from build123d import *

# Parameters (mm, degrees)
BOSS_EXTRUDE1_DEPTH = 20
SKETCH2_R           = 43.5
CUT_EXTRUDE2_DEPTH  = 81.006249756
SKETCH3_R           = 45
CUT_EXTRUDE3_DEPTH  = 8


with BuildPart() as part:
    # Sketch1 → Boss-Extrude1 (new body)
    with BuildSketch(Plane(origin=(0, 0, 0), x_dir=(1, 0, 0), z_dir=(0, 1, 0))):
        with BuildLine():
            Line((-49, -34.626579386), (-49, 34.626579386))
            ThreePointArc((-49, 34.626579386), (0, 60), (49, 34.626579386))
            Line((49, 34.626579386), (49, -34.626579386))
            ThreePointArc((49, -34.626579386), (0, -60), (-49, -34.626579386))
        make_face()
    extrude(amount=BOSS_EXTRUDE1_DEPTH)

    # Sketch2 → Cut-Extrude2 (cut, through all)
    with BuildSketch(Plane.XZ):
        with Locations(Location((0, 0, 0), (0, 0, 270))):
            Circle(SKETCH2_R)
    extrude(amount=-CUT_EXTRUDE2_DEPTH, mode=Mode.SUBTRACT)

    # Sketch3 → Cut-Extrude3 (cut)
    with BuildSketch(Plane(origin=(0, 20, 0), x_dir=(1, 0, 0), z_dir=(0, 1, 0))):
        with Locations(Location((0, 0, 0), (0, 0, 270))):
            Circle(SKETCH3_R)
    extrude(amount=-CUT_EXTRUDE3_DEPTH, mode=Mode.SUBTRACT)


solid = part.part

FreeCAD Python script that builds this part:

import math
import FreeCAD as App
import Part
import Sketcher

doc = App.newDocument("Part")
params = doc.addObject("Spreadsheet::Sheet", "Params")
for row, (alias, value) in enumerate([
    ("sketch1_radius", "60 mm"),
    ("pad1_length", "20 mm"),
    ("sketch2_diameter", "87 mm"),
    ("sketch3_diameter", "90 mm"),
    ("pocket2_length", "8 mm"),
], start=1):
    params.set(f"A{row}", alias)
    params.set(f"B{row}", "=" + value)
    params.setAlias(f"B{row}", alias)

body = doc.addObject("PartDesign::Body", "Body")

sketch1 = doc.addObject("Sketcher::SketchObject", "Sketch")
body.addObject(sketch1)
sketch1.AttachmentSupport = (doc.XZ_Plane, [""])
sketch1.MapMode = "FlatFace"
sketch1.addGeometry([
    Part.LineSegment(App.Vector(-49, -35, 0), App.Vector(-49, 35, 0)),
    Part.ArcOfCircle(Part.Circle(App.Vector(0, 0, 0), App.Vector(0, 0, 1), 60), math.radians(35), math.radians(145)),
    Part.LineSegment(App.Vector(49, 35, 0), App.Vector(49, -35, 0)),
    Part.ArcOfCircle(Part.Circle(App.Vector(0, 0, 0), App.Vector(0, 0, 1), 60), math.radians(-145), math.radians(-35)),
], False)
sketch1.addConstraint([
    Sketcher.Constraint("Coincident", 0, 2, 1, 2),
    Sketcher.Constraint("Coincident", 1, 1, 2, 1),
    Sketcher.Constraint("Coincident", 2, 2, 3, 2),
    Sketcher.Constraint("Coincident", 3, 1, 0, 1),
    Sketcher.Constraint("Vertical", 0),
    Sketcher.Constraint("Vertical", 2),
    Sketcher.Constraint("Coincident", 1, 3, -1, 1),
    Sketcher.Constraint("Coincident", 3, 3, -1, 1),
    Sketcher.Constraint("Equal", 1, 3),
    Sketcher.Constraint("Horizontal", 0, 2, 1, 1),
    Sketcher.Constraint("Radius", 1, 60.0),
    Sketcher.Constraint("DistanceX", 0, 2, -1, 1, 49.0),
])
sketch1.setExpression("Constraints[10]", "Params.sketch1_radius")
pad1 = doc.addObject("PartDesign::Pad", "Pad")
body.addObject(pad1)
pad1.Profile = sketch1
pad1.setExpression("Length", "Params.pad1_length")
pad1.Reversed = True

sketch2 = doc.addObject("Sketcher::SketchObject", "Sketch001")
body.addObject(sketch2)
sketch2.AttachmentSupport = (doc.XZ_Plane, [""])
sketch2.MapMode = "FlatFace"
sketch2.addGeometry(Part.Circle(App.Vector(0, 0, 0), App.Vector(0, 0, 1), 44), False)
sketch2.addConstraint([
    Sketcher.Constraint("Coincident", 0, 3, -1, 1),
    Sketcher.Constraint("Diameter", 0, 87.0),
])
sketch2.setExpression("Constraints[1]", "Params.sketch2_diameter")
pocket1 = doc.addObject("PartDesign::Pocket", "Pocket")
body.addObject(pocket1)
pocket1.Profile = sketch2
pocket1.Type = "ThroughAll"

sketch3 = doc.addObject("Sketcher::SketchObject", "Sketch002")
body.addObject(sketch3)
sketch3.AttachmentSupport = (doc.XZ_Plane, [""])
sketch3.MapMode = "FlatFace"
sketch3.AttachmentOffset = App.Placement(App.Vector(0, 0, -20), App.Rotation())
sketch3.addGeometry(Part.Circle(App.Vector(0, 0, 0), App.Vector(0, 0, 1), 45), False)
sketch3.addConstraint([
    Sketcher.Constraint("Coincident", 0, 3, -1, 1),
    Sketcher.Constraint("Diameter", 0, 90.0),
])
sketch3.setExpression("Constraints[1]", "Params.sketch3_diameter")
pocket2 = doc.addObject("PartDesign::Pocket", "Pocket001")
body.addObject(pocket2)
pocket2.Profile = sketch3
pocket2.setExpression("Length", "Params.pocket2_length")
pocket2.Reversed = True

doc.recompute()
